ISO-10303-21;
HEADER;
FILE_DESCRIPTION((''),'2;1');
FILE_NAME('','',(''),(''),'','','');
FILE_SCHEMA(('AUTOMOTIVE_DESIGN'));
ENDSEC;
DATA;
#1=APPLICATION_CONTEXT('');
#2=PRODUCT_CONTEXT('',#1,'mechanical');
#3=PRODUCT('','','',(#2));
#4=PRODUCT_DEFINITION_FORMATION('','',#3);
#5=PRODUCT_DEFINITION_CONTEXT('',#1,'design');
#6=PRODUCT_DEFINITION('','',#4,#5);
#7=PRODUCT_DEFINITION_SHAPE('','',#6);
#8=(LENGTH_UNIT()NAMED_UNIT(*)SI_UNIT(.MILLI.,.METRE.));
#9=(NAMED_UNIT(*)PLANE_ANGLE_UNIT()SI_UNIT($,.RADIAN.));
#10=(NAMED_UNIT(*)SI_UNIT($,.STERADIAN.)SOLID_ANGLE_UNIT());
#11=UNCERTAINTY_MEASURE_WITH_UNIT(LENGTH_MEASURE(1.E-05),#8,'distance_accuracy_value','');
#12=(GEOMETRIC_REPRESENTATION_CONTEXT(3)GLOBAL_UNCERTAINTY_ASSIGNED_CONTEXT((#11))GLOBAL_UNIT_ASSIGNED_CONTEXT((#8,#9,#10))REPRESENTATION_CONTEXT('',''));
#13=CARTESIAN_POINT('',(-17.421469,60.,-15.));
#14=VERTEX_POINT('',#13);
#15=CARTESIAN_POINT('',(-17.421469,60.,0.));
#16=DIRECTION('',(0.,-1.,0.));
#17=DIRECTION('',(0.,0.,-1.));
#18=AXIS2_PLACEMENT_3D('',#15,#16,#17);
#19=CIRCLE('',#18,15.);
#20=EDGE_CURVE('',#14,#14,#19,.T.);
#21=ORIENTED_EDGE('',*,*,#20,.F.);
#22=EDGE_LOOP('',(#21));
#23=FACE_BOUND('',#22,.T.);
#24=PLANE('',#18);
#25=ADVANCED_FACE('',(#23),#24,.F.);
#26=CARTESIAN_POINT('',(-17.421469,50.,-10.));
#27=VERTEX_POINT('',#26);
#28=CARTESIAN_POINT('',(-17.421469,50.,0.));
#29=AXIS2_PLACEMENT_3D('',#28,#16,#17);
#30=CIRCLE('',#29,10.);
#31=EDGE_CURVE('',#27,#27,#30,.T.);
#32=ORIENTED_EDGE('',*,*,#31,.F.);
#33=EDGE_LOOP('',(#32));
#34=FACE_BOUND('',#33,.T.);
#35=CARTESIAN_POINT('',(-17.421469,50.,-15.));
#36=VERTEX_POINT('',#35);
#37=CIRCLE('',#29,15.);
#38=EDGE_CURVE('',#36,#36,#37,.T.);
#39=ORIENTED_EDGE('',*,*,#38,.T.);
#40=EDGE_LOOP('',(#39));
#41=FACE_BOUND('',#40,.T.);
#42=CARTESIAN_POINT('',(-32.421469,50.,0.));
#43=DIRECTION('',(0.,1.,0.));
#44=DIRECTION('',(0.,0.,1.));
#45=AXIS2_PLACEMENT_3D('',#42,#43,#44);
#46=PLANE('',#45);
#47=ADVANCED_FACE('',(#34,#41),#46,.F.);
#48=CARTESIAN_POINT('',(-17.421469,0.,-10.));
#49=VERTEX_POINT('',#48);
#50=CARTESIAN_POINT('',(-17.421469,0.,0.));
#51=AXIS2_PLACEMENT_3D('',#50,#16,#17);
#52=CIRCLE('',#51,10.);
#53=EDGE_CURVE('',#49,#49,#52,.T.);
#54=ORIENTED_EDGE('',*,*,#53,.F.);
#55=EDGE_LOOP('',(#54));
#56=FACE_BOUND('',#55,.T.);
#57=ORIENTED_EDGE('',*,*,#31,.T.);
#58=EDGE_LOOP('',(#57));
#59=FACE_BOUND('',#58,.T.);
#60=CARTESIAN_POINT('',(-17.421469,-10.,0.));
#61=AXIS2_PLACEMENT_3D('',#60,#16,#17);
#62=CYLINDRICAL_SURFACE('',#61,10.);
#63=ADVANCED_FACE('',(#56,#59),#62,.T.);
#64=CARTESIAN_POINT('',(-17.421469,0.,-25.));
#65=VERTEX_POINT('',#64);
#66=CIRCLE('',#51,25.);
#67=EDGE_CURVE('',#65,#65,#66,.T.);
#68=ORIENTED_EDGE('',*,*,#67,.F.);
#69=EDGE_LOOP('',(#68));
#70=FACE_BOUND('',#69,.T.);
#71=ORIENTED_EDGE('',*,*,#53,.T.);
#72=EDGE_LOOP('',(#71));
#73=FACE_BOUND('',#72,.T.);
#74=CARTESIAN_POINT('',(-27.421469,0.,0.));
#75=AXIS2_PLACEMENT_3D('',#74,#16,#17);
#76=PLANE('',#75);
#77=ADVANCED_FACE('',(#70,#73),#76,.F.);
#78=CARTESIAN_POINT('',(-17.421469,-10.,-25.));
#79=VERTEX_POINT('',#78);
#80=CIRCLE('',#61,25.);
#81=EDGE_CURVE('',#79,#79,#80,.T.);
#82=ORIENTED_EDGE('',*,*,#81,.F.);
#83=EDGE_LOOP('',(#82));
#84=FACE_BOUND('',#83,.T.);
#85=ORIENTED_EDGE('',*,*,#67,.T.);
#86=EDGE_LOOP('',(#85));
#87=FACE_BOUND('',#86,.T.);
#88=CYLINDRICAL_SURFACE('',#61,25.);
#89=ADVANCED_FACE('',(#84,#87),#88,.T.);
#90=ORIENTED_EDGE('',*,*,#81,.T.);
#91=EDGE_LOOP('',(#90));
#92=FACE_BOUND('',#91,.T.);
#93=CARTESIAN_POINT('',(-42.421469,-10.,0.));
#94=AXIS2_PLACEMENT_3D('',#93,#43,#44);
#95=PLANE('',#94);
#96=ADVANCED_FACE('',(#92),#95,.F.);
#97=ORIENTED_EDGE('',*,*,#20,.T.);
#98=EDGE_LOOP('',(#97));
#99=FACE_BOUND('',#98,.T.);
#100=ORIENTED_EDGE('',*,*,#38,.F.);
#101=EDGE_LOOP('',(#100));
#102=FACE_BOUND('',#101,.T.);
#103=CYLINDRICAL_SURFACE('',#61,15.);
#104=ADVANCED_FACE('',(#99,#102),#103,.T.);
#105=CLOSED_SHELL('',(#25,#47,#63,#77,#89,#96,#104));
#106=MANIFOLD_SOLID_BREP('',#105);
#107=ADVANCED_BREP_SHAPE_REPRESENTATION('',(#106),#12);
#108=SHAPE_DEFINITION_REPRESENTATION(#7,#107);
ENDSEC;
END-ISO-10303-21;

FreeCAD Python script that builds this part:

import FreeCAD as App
import Part
import Sketcher


def add_polygon(sketch, points):
    """Adds a closed chain of lines whose ends are joined by coincident constraints."""
    first, n = sketch.GeometryCount, len(points)
    for a, b in zip(points, points[1:] + points[:1]):
        sketch.addGeometry(Part.LineSegment(App.Vector(*a, 0), App.Vector(*b, 0)), False)
    for i in range(n):
        sketch.addConstraint(Sketcher.Constraint("Coincident", first + i, 2, first + (i + 1) % n, 1))

doc = App.newDocument("Part")
body = doc.addObject("PartDesign::Body", "Body")

# Sketch on XY plane
sketch1 = body.newObject("Sketcher::SketchObject", "Sketch")
sketch1.AttachmentSupport = (doc.getObject("XY_Plane"), [""])
sketch1.MapMode = "FlatFace"
add_polygon(sketch1, [(-42, -10), (-17, -10), (-17, 60), (-32, 60), (-32, 50), (-27, 50), (-27, 0), (-42, 0)])  # lines 0-7
sketch1.addGeometry(Part.LineSegment(App.Vector(-17, -10, 0), App.Vector(-17, 60, 0)), True)  # axis
sketch1.addConstraint(Sketcher.Constraint("Horizontal", 0))
sketch1.addConstraint(Sketcher.Constraint("Vertical", 1))
sketch1.addConstraint(Sketcher.Constraint("Horizontal", 2))
sketch1.addConstraint(Sketcher.Constraint("Vertical", 3))
sketch1.addConstraint(Sketcher.Constraint("Horizontal", 4))
sketch1.addConstraint(Sketcher.Constraint("Vertical", 5))
sketch1.addConstraint(Sketcher.Constraint("Horizontal", 6))
sketch1.addConstraint(Sketcher.Constraint("Vertical", 7))
sketch1.addConstraint(Sketcher.Constraint("Vertical", 8))
sketch1.addConstraint(Sketcher.Constraint("Coincident", 8, 1, 0, 2))
sketch1.addConstraint(Sketcher.Constraint("PointOnObject", 5, 2, -1))
sketch1.addConstraint(Sketcher.Constraint("Horizontal", 2, 2, 8, 2))
sketch1.addConstraint(Sketcher.Constraint("Equal", 2, 6))
sketch1.addConstraint(Sketcher.Constraint("Equal", 3, 7))
sketch1.addConstraint(Sketcher.Constraint("DistanceX", 0, 1, 0, 2, 25.0))
sketch1.addConstraint(Sketcher.Constraint("DistanceX", 2, 2, 2, 1, 15.0))
sketch1.addConstraint(Sketcher.Constraint("DistanceY", 1, 1, 1, 2, 70.0))
sketch1.addConstraint(Sketcher.Constraint("DistanceY", 3, 2, 3, 1, 10.0))
sketch1.addConstraint(Sketcher.Constraint("DistanceX", 0, 2, -1, 1, 17.421469))
revolution = body.newObject("PartDesign::Revolution", "Revolution")
revolution.Profile = sketch1
revolution.ReferenceAxis = (sketch1, ["Axis0"])
revolution.Angle = 360

doc.recompute()
